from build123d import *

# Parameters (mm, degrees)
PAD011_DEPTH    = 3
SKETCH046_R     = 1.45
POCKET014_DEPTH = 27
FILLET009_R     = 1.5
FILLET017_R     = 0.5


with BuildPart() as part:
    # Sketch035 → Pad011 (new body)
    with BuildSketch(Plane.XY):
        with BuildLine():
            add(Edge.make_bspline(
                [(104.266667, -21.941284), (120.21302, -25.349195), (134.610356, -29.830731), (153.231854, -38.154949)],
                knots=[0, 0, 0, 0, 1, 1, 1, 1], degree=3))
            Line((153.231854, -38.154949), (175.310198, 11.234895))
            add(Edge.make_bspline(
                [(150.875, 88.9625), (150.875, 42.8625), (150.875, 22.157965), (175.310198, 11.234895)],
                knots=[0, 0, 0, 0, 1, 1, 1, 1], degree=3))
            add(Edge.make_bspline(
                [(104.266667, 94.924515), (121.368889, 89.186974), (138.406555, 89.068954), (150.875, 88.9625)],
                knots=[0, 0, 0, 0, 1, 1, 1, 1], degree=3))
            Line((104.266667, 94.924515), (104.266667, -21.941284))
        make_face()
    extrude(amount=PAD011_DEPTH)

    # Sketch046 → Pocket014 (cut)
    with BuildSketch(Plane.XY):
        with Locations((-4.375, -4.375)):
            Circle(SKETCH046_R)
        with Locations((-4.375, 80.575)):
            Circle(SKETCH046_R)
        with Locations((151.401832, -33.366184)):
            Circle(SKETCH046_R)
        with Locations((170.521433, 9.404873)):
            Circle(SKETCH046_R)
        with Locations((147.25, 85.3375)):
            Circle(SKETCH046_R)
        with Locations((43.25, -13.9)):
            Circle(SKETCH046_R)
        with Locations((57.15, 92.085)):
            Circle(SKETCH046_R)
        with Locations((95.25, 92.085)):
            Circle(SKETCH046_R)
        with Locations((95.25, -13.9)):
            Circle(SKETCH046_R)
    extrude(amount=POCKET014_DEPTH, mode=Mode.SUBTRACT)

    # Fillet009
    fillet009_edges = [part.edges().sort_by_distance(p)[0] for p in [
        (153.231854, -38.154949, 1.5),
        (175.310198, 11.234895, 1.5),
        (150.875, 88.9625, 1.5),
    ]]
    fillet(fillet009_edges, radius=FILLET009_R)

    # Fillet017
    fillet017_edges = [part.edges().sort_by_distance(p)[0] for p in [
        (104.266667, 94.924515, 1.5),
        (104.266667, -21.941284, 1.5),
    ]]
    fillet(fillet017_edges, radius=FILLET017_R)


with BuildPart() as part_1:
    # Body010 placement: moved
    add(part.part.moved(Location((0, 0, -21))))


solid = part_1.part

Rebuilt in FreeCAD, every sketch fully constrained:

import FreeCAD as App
import Part
import Sketcher
Q = App.Units.Quantity


def edges_at(feature, points):
    """Names of the edges that pass closest to the given points."""
    edges = feature.Shape.Edges
    near = lambda p: min(range(len(edges)), key=lambda i: edges[i].distToShape(Part.Vertex(*p))[0])
    return sorted({f"Edge{near(p) + 1}" for p in points})

doc = App.newDocument("Part")
params = doc.addObject("Spreadsheet::Sheet", "Params")
for row, (alias, value) in enumerate([
    ("pad1_length", "3 mm"),
    ("sketch2_diameter", "2.9 mm"),
    ("pocket1_length", "27 mm"),
    ("fillet_radius", "1.5 mm"),
    ("fillet2_radius", "0.5 mm"),
], start=1):
    params.set(f"A{row}", alias)
    params.set(f"B{row}", "=" + value)
    params.setAlias(f"B{row}", alias)

body = doc.addObject("PartDesign::Body", "Body")

# Sketch on XY plane
sketch1 = doc.addObject("Sketcher::SketchObject", "Sketch")
body.addObject(sketch1)
sketch1.AttachmentSupport = (doc.XY_Plane, [""])
sketch1.MapMode = "FlatFace"
sketch1.addGeometry([
    Part.BSplineCurve([App.Vector(104.266667, -21.941284, 0), App.Vector(120.21302, -25.349195, 0), App.Vector(134.610356, -29.830731, 0), App.Vector(153.231854, -38.154949, 0)], [4, 4], [0, 1], False, 3, [1, 1, 1, 1], False),  # 0
    Part.LineSegment(App.Vector(153.231854, -38.154949, 0), App.Vector(175.310198, 11.234895, 0)),  # 1
    Part.BSplineCurve([App.Vector(150.875, 88.9625, 0), App.Vector(150.875, 42.8625, 0), App.Vector(150.875, 22.157965, 0), App.Vector(175.310198, 11.234895, 0)], [4, 4], [0, 1], False, 3, [1, 1, 1, 1], False),  # 2
    Part.BSplineCurve([App.Vector(104.266667, 94.924515, 0), App.Vector(121.368889, 89.186974, 0), App.Vector(138.406555, 89.068954, 0), App.Vector(150.875, 88.9625, 0)], [4, 4], [0, 1], False, 3, [1, 1, 1, 1], False),  # 3
    Part.LineSegment(App.Vector(104.266667, 94.924515, 0), App.Vector(104.266667, -21.941284, 0)),  # 4
], False)
sketch1.addConstraint([
    Sketcher.Constraint("Block", 0),
    Sketcher.Constraint("Block", 2),
    Sketcher.Constraint("Block", 3),
    Sketcher.Constraint("Coincident", 0, 2, 1, 1),
    Sketcher.Constraint("Coincident", 1, 2, 2, 2),
    Sketcher.Constraint("Coincident", 3, 1, 4, 1),
    Sketcher.Constraint("Coincident", 4, 2, 0, 1),
])
pad1 = doc.addObject("PartDesign::Pad", "Pad")
body.addObject(pad1)
pad1.Profile = sketch1
pad1.setExpression("Length", "Params.pad1_length")

# Sketch on XY plane
sketch2 = doc.addObject("Sketcher::SketchObject", "Sketch001")
body.addObject(sketch2)
sketch2.AttachmentSupport = (doc.XY_Plane, [""])
sketch2.MapMode = "FlatFace"
sketch2.addGeometry([
    Part.Circle(App.Vector(-4.4, -4.4, 0), App.Vector(0, 0, 1), 1.4),  # 0
    Part.Circle(App.Vector(-4.4, 80.6, 0), App.Vector(0, 0, 1), 1.4),  # 1
    Part.Circle(App.Vector(151.4, -33.4, 0), App.Vector(0, 0, 1), 1.4),  # 2
    Part.Circle(App.Vector(170.5, 9.4, 0), App.Vector(0, 0, 1), 1.4),  # 3
    Part.Circle(App.Vector(147.2, 85.3, 0), App.Vector(0, 0, 1), 1.4),  # 4
    Part.Circle(App.Vector(43.2, -13.9, 0), App.Vector(0, 0, 1), 1.4),  # 5
    Part.Circle(App.Vector(57.1, 92.1, 0), App.Vector(0, 0, 1), 1.4),  # 6
    Part.Circle(App.Vector(95.2, 92.1, 0), App.Vector(0, 0, 1), 1.4),  # 7
    Part.Circle(App.Vector(95.2, -13.9, 0), App.Vector(0, 0, 1), 1.4),  # 8
], False)
sketch2.addConstraint([
    Sketcher.Constraint("Equal", 0, 1),
    Sketcher.Constraint("Equal", 1, 2),
    Sketcher.Constraint("Equal", 2, 3),
    Sketcher.Constraint("Equal", 3, 4),
    Sketcher.Constraint("Equal", 4, 5),
    Sketcher.Constraint("Equal", 5, 6),
    Sketcher.Constraint("Equal", 6, 7),
    Sketcher.Constraint("Equal", 7, 8),
    Sketcher.Constraint("Horizontal", 6, 3, 7, 3),
    Sketcher.Constraint("Horizontal", 5, 3, 8, 3),
    Sketcher.Constraint("Vertical", 0, 3, 1, 3),
    Sketcher.Constraint("Vertical", 7, 3, 8, 3),
    Sketcher.Constraint("Diameter", 0, Q("2.9 mm")),
    Sketcher.Constraint("DistanceX", 5, 3, 4, 3, Q("104 mm")),
    Sketcher.Constraint("DistanceX", 7, 3, 4, 3, Q("52 mm")),
    Sketcher.Constraint("DistanceY", 5, 3, -1, 1, Q("13.9 mm")),
    Sketcher.Constraint("DistanceX", 6, 3, 4, 3, Q("90.1 mm")),
    Sketcher.Constraint("DistanceX", -1, 1, 4, 3, Q("147.25 mm")),
    Sketcher.Constraint("DistanceY", 0, 3, 1, 3, Q("84.95 mm")),
    Sketcher.Constraint("DistanceY", 1, 3, 6, 3, Q("11.51 mm")),
    Sketcher.Constraint("DistanceX", 0, 3, -1, 1, Q("4.375 mm")),
    Sketcher.Constraint("DistanceY", 0, 3, -1, 1, Q("4.375 mm")),
    Sketcher.Constraint("DistanceY", -1, 1, 4, 3, Q("85.3375 mm")),
    Sketcher.Constraint("DistanceX", 2, 3, 3, 3, Q("19.119601 mm")),
    Sketcher.Constraint("DistanceX", -1, 1, 2, 3, Q("151.401832 mm")),
    Sketcher.Constraint("DistanceY", 2, 3, -1, 1, Q("33.366184 mm")),
    Sketcher.Constraint("DistanceY", -1, 1, 3, 3, Q("9.404873 mm")),
])
sketch2.setExpression("Constraints[12]", "Params.sketch2_diameter")
pocket1 = doc.addObject("PartDesign::Pocket", "Pocket")
body.addObject(pocket1)
pocket1.Profile = sketch2
pocket1.setExpression("Length", "Params.pocket1_length")
pocket1.Reversed = True
doc.recompute()

fillet = doc.addObject("PartDesign::Fillet", "Fillet")
body.addObject(fillet)
fillet.Base = (pocket1, edges_at(pocket1, [(153.232, -38.155, 1.5), (175.31, 11.235, 1.5), (150.875, 88.963, 1.5)]))
fillet.setExpression("Radius", "Params.fillet_radius")
doc.recompute()

fillet2 = doc.addObject("PartDesign::Fillet", "Fillet001")
body.addObject(fillet2)
fillet2.Base = (fillet, edges_at(fillet, [(104.267, 94.925, 1.5), (104.267, -21.941, 1.5)]))
fillet2.setExpression("Radius", "Params.fillet2_radius")
body2 = doc.addObject("PartDesign::Body", "Body001")
doc.recompute()

body.Placement = App.Placement(App.Vector(0, 0, -21), App.Rotation(App.Vector(0, 0, 1), 0))
boolean = doc.addObject("PartDesign::Boolean", "Boolean")
body2.addObject(boolean)
boolean.Type = "Fuse"
boolean.addObjects([body])

doc.recompute()
